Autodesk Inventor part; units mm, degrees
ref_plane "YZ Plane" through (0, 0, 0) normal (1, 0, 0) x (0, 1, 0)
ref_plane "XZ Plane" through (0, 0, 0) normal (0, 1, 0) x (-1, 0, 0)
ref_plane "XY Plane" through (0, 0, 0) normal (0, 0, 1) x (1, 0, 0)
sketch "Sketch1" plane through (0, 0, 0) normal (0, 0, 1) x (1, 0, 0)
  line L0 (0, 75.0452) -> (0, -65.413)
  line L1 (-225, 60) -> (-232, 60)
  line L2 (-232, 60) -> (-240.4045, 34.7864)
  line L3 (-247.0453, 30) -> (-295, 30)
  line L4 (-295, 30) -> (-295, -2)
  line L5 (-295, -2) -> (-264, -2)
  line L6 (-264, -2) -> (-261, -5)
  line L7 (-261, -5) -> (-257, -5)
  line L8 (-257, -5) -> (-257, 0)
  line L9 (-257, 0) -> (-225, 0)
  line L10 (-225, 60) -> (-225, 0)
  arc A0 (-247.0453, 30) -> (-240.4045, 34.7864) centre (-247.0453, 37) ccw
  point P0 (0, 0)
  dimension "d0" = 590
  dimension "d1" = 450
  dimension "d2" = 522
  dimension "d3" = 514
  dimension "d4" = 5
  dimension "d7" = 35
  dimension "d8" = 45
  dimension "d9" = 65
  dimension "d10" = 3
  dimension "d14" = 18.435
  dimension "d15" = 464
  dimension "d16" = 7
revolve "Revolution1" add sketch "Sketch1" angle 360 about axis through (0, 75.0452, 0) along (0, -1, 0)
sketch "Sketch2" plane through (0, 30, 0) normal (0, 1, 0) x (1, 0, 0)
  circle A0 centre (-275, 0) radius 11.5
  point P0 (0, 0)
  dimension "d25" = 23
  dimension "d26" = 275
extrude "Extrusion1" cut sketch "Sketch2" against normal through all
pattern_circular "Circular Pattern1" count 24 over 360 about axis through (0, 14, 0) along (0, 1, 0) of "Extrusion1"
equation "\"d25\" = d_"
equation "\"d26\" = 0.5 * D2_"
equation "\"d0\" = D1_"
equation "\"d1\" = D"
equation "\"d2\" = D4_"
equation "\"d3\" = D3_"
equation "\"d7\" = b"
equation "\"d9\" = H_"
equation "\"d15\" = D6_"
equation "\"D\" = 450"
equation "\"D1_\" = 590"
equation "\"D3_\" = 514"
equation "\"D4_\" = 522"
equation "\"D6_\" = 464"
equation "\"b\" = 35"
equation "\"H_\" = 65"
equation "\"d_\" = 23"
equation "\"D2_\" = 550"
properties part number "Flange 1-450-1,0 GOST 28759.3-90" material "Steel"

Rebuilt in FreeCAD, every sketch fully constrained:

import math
import FreeCAD as App
import Part
import Sketcher

V = App.Vector
Q = App.Units.Quantity

doc = App.newDocument("Part")
params = doc.addObject("Spreadsheet::Sheet", "Params")
for row, (alias, value) in enumerate([
    ("sketch1_radius", "7 mm"),
    ("sketch1_width", "7 mm"),
    ("sketch1_height", "5 mm"),
    ("sketch1_width2", "31 mm"),
    ("sketch1_height2", "60 mm"),
    ("revolution_angle", "360 deg"),
    ("sketch2_diameter", "23 mm"),
], start=1):
    params.set(f"A{row}", alias)
    params.set(f"B{row}", "=" + value)
    params.setAlias(f"B{row}", alias)

body = doc.addObject("PartDesign::Body", "Body")

sketch1 = doc.addObject("Sketcher::SketchObject", "Sketch")
body.addObject(sketch1)
sketch1.AttachmentSupport = (doc.XY_Plane, [""])
sketch1.MapMode = "FlatFace"
sketch1.addGeometry([
    Part.LineSegment(V(-225, 0, 0), V(-225, 60, 0)),
    Part.LineSegment(V(-225, 60, 0), V(-232, 60, 0)),
    Part.LineSegment(V(-232, 60, 0), V(-240.4045, 34.7864, 0)),
    Part.ArcOfCircle(Part.Circle(V(-247.0453, 37, 0), V(0, 0, 1), 7), math.radians(-90), math.radians(-18.434949)),
    Part.LineSegment(V(-247.0453, 30, 0), V(-295, 30, 0)),
    Part.LineSegment(V(-295, 30, 0), V(-295, -2, 0)),
    Part.LineSegment(V(-295, -2, 0), V(-264, -2, 0)),
    Part.LineSegment(V(-264, -2, 0), V(-261, -5, 0)),
    Part.LineSegment(V(-261, -5, 0), V(-257, -5, 0)),
    Part.LineSegment(V(-257, -5, 0), V(-257, 0, 0)),
    Part.LineSegment(V(-257, 0, 0), V(-225, 0, 0)),
], False)
sketch1.addConstraint([
    Sketcher.Constraint("Coincident", 0, 2, 1, 1),
    Sketcher.Constraint("Coincident", 1, 2, 2, 1),
    Sketcher.Constraint("Tangent", 2, 2, 3, 2),
    Sketcher.Constraint("Tangent", 3, 1, 4, 1),
    Sketcher.Constraint("Coincident", 4, 2, 5, 1),
    Sketcher.Constraint("Coincident", 5, 2, 6, 1),
    Sketcher.Constraint("Coincident", 6, 2, 7, 1),
    Sketcher.Constraint("Coincident", 7, 2, 8, 1),
    Sketcher.Constraint("Coincident", 8, 2, 9, 1),
    Sketcher.Constraint("Coincident", 9, 2, 10, 1),
    Sketcher.Constraint("Coincident", 10, 2, 0, 1),
    Sketcher.Constraint("Vertical", 0),
    Sketcher.Constraint("Horizontal", 1),
    Sketcher.Constraint("Horizontal", 4),
    Sketcher.Constraint("Vertical", 5),
    Sketcher.Constraint("Horizontal", 6),
    Sketcher.Constraint("Horizontal", 8),
    Sketcher.Constraint("Vertical", 9),
    Sketcher.Constraint("Horizontal", 10),
    Sketcher.Constraint("PointOnObject", 9, 2, -1),
    Sketcher.Constraint("Equal", 10, 5),
    Sketcher.Constraint("Radius", 3, Q("7 mm")),
    Sketcher.Constraint("DistanceX", 1, 2, 1, 1, Q("7 mm")),
    Sketcher.Constraint("DistanceY", 9, 1, 9, 2, Q("5 mm")),
    Sketcher.Constraint("Angle", 7, Q("-45 deg")),
    Sketcher.Constraint("DistanceX", 6, 2, 7, 2, Q("3 mm")),
    Sketcher.Constraint("DistanceY", 7, 2, 3, 1, Q("35 mm")),
    Sketcher.Constraint("DistanceX", 6, 2, 8, 2, Q("7 mm")),
    Sketcher.Constraint("DistanceX", 6, 1, 6, 2, Q("31 mm")),
    Sketcher.Constraint("DistanceY", 0, 1, 0, 2, Q("60 mm")),
    Sketcher.Constraint("DistanceX", 0, 2, -1, 1, Q("225 mm")),
    Sketcher.Constraint("DistanceX", 4, 2, 4, 1, Q("47.9547 mm")),
])
sketch1.setExpression("Constraints[21]", "Params.sketch1_radius")
sketch1.setExpression("Constraints[22]", "Params.sketch1_width")
sketch1.setExpression("Constraints[23]", "Params.sketch1_height")
sketch1.setExpression("Constraints[28]", "Params.sketch1_width2")
sketch1.setExpression("Constraints[29]", "Params.sketch1_height2")
revolution = doc.addObject("PartDesign::Revolution", "Revolution")
body.addObject(revolution)
revolution.Profile = sketch1
revolution.ReferenceAxis = (sketch1, ["V_Axis"])
revolution.setExpression("Angle", "Params.revolution_angle")

sketch2 = doc.addObject("Sketcher::SketchObject", "Sketch001")
body.addObject(sketch2)
sketch2.AttachmentSupport = (doc.XZ_Plane, [""])
sketch2.MapMode = "FlatFace"
sketch2.AttachmentOffset = App.Placement(V(0, 0, -30), App.Rotation())
sketch2.addGeometry(Part.Circle(V(-275, 0, 0), V(0, 0, 1), 11.5), False)
sketch2.addConstraint([
    Sketcher.Constraint("PointOnObject", 0, 3, -1),
    Sketcher.Constraint("Diameter", 0, Q("23 mm")),
    Sketcher.Constraint("DistanceX", 0, 3, -1, 1, Q("275 mm")),
])
sketch2.setExpression("Constraints[1]", "Params.sketch2_diameter")
pocket1 = doc.addObject("PartDesign::Pocket", "Pocket")
body.addObject(pocket1)
pocket1.Profile = sketch2
pocket1.Type = "ThroughAll"
pocket1.Reversed = True
doc.recompute()

polarpattern = doc.addObject("PartDesign::PolarPattern", "PolarPattern")
body.addObject(polarpattern)
polarpattern.Originals = [pocket1]
polarpattern.Axis = (doc.Y_Axis, [""])
polarpattern.Angle = 360
polarpattern.Occurrences = 24
body.Tip = polarpattern

doc.recompute()
